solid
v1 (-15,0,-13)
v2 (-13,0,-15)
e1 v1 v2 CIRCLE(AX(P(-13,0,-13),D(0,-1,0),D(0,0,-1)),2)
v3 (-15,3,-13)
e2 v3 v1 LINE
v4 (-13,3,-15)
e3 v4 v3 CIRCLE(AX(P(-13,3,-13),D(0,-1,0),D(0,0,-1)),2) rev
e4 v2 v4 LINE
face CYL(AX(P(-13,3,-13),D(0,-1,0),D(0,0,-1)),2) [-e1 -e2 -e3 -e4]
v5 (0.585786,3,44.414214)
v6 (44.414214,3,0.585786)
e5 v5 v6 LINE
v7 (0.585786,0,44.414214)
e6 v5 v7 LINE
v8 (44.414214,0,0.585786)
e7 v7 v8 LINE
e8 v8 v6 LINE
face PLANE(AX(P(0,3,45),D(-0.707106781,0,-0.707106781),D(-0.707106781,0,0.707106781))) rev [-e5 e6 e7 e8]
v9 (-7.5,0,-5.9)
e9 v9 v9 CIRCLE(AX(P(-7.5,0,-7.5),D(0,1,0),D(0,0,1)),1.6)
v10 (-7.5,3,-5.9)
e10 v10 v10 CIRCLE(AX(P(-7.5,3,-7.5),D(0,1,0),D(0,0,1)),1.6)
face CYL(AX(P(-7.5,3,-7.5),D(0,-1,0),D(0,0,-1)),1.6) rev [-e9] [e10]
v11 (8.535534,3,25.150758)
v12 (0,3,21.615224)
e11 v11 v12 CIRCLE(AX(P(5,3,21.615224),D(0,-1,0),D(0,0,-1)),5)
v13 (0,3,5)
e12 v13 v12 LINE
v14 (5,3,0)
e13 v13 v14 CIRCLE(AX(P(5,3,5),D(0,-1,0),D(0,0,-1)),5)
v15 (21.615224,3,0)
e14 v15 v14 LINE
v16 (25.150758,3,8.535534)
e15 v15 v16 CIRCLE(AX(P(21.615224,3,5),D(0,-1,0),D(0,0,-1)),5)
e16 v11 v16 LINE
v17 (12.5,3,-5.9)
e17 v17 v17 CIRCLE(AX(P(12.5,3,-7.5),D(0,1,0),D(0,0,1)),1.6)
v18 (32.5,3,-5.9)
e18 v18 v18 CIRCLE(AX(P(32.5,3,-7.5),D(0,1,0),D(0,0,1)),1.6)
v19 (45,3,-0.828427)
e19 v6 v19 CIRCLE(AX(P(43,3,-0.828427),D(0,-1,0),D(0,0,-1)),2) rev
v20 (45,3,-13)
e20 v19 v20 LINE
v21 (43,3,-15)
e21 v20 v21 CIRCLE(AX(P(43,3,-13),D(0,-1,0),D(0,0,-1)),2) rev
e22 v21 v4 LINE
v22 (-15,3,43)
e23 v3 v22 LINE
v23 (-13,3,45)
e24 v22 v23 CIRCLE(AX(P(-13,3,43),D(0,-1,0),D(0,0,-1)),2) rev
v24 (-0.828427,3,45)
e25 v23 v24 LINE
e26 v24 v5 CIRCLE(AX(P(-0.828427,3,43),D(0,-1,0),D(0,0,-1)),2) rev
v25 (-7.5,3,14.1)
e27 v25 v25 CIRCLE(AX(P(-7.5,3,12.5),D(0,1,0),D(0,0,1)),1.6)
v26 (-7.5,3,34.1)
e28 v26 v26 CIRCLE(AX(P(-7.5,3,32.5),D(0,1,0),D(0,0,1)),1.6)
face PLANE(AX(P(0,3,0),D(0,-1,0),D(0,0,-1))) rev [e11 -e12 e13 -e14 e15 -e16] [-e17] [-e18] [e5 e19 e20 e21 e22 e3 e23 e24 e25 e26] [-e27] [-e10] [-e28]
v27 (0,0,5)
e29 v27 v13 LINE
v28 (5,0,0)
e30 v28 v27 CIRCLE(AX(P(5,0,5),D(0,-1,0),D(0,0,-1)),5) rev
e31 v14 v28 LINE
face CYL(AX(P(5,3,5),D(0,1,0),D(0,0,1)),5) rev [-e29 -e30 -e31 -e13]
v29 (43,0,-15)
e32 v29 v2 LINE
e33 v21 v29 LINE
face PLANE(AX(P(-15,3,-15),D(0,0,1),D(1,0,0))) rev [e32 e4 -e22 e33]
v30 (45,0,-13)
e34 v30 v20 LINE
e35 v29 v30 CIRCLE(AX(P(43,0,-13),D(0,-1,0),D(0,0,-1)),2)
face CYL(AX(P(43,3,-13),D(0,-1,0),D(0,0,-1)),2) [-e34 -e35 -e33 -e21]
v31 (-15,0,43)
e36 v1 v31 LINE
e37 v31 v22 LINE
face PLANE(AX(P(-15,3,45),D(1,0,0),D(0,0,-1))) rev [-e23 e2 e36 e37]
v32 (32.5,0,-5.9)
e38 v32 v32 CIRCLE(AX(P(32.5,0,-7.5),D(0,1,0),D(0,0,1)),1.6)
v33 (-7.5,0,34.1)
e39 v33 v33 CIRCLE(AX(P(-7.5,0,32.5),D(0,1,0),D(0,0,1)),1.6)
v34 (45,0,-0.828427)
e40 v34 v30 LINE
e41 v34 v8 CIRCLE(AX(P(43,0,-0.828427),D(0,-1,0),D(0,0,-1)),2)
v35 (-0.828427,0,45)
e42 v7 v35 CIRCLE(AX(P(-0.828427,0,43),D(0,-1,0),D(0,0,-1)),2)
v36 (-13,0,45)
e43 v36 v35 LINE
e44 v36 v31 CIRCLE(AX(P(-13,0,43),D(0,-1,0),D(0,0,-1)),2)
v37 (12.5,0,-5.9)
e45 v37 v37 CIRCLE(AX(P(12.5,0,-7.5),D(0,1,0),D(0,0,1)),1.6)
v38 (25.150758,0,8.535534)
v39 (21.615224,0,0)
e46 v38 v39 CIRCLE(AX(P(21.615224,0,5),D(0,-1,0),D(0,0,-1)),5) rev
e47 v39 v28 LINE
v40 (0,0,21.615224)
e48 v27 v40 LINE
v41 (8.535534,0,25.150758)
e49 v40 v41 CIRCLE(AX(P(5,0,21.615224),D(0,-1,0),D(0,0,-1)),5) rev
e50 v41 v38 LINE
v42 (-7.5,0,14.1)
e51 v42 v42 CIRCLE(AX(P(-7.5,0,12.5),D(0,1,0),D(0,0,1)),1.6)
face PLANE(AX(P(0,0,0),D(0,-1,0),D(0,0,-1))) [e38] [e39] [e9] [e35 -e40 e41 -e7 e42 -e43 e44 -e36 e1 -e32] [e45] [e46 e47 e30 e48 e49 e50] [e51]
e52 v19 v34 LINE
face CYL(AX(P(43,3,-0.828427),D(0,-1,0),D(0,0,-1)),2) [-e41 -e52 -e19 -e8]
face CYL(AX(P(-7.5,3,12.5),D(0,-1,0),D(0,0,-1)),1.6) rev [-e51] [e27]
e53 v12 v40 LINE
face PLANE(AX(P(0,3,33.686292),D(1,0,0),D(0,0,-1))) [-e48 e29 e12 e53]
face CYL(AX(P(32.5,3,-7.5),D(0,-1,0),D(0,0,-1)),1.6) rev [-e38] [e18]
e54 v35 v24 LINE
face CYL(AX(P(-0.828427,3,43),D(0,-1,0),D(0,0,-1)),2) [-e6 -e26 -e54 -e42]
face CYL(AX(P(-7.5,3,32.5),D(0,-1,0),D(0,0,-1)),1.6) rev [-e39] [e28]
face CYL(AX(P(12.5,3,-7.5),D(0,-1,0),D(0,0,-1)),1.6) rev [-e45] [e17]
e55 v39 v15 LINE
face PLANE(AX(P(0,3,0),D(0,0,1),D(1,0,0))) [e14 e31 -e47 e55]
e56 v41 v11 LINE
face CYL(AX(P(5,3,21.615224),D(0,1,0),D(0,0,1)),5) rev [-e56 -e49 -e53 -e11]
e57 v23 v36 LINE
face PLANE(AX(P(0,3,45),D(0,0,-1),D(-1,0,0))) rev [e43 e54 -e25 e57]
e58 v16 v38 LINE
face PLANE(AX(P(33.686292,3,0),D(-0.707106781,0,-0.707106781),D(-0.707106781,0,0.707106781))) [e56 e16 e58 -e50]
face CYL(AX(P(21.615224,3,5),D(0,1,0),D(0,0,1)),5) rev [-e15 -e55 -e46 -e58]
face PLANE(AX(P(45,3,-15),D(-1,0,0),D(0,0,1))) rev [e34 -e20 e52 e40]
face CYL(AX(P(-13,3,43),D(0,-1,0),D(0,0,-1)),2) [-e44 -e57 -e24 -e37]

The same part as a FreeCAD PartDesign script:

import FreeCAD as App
import Part
import Sketcher
from FreeCAD import Vector
Q = App.Units.Quantity


def edges_at(feature, points):
    """Names of the edges that pass closest to the given points."""
    edges = feature.Shape.Edges
    near = lambda p: min(range(len(edges)), key=lambda i: edges[i].distToShape(Part.Vertex(*p))[0])
    return sorted({f"Edge{near(p) + 1}" for p in points})

doc = App.newDocument("Part")
params = doc.addObject("Spreadsheet::Sheet", "Params")
for row, (alias, value) in enumerate([
    ("sketch1_diameter", "3.2 mm"),
    ("sketch1_width", "15 mm"),
    ("sketch1_width2", "60 mm"),
    ("pad1_length", "3 mm"),
    ("fillet_radius", "2 mm"),
    ("fillet2_radius", "5 mm"),
], start=1):
    params.set(f"A{row}", alias)
    params.set(f"B{row}", "=" + value)
    params.setAlias(f"B{row}", alias)

body = doc.addObject("PartDesign::Body", "Body")

# Sketch on XZ plane
sketch1 = body.newObject("Sketcher::SketchObject", "Sketch")
sketch1.AttachmentSupport = (doc.getObject("XZ_Plane"), [""])
sketch1.MapMode = "FlatFace"
sketch1.addGeometry([
    Part.LineSegment(Vector(-15, 45, 0), Vector(0, 45, 0)),  # 0
    Part.LineSegment(Vector(0, 45, 0), Vector(45, 0, 0)),  # 1
    Part.LineSegment(Vector(45, 0, 0), Vector(45, -15, 0)),  # 2
    Part.LineSegment(Vector(45, -15, 0), Vector(-15, -15, 0)),  # 3
    Part.LineSegment(Vector(-15, -15, 0), Vector(-15, 45, 0)),  # 4
    Part.LineSegment(Vector(0, 33.7, 0), Vector(0, 0, 0)),  # 5
    Part.LineSegment(Vector(0, 0, 0), Vector(33.7, 0, 0)),  # 6
    Part.LineSegment(Vector(33.7, 0, 0), Vector(0, 33.7, 0)),  # 7
    Part.Circle(Vector(-7.5, 32.5, 0), Vector(0, 0, 1), 1.6),  # 8
    Part.Circle(Vector(32.5, -7.5, 0), Vector(0, 0, 1), 1.6),  # 9
    Part.Circle(Vector(-7.5, 12.5, 0), Vector(0, 0, 1), 1.6),  # 10
    Part.Circle(Vector(12.5, -7.5, 0), Vector(0, 0, 1), 1.6),  # 11
    Part.Circle(Vector(-7.5, -7.5, 0), Vector(0, 0, 1), 1.6),  # 12
], False)
sketch1.addConstraint([
    Sketcher.Constraint("Coincident", 0, 2, 1, 1),
    Sketcher.Constraint("Coincident", 1, 2, 2, 1),
    Sketcher.Constraint("Coincident", 2, 2, 3, 1),
    Sketcher.Constraint("Coincident", 3, 2, 4, 1),
    Sketcher.Constraint("Coincident", 4, 2, 0, 1),
    Sketcher.Constraint("Coincident", 5, 2, 6, 1),
    Sketcher.Constraint("Coincident", 6, 2, 7, 1),
    Sketcher.Constraint("Coincident", 7, 2, 5, 1),
    Sketcher.Constraint("Horizontal", 0),
    Sketcher.Constraint("Vertical", 2),
    Sketcher.Constraint("Horizontal", 3),
    Sketcher.Constraint("Vertical", 4),
    Sketcher.Constraint("Vertical", 5),
    Sketcher.Constraint("Horizontal", 6),
    Sketcher.Constraint("Coincident", 5, 2, -1, 1),
    Sketcher.Constraint("Equal", 8, 9),
    Sketcher.Constraint("Equal", 9, 10),
    Sketcher.Constraint("Equal", 10, 11),
    Sketcher.Constraint("Equal", 11, 12),
    Sketcher.Constraint("PointOnObject", 0, 2, -2),
    Sketcher.Constraint("PointOnObject", 1, 2, -1),
    Sketcher.Constraint("Parallel", 1, 7),
    Sketcher.Constraint("Horizontal", 9, 3, 11, 3),
    Sketcher.Constraint("Horizontal", 11, 3, 12, 3),
    Sketcher.Constraint("Vertical", 8, 3, 10, 3),
    Sketcher.Constraint("Vertical", 10, 3, 12, 3),
    Sketcher.Constraint("Equal", 0, 2),
    Sketcher.Constraint("Equal", 3, 4),
    Sketcher.Constraint("Diameter", 8, Q("3.2 mm")),
    Sketcher.Constraint("DistanceX", 0, 1, 0, 2, Q("15 mm")),
    Sketcher.Constraint("DistanceX", 3, 2, 3, 1, Q("60 mm")),
    Sketcher.Constraint("DistanceX", 8, 3, 9, 3, Q("40 mm")),
    Sketcher.Constraint("DistanceY", 9, 3, 8, 3, Q("40 mm")),
    Sketcher.Constraint("DistanceY", 10, 3, 8, 3, Q("20 mm")),
    Sketcher.Constraint("DistanceX", 11, 3, 9, 3, Q("20 mm")),
    Sketcher.Constraint("DistanceX", 8, 3, -1, 1, Q("7.5 mm")),
    Sketcher.Constraint("DistanceY", -1, 1, 8, 3, Q("32.5 mm")),
    Sketcher.Constraint("DistanceX", 6, 1, 6, 2, Q("33.686292 mm")),
])
sketch1.setExpression("Constraints[28]", "Params.sketch1_diameter")
sketch1.setExpression("Constraints[29]", "Params.sketch1_width")
sketch1.setExpression("Constraints[30]", "Params.sketch1_width2")
pad1 = body.newObject("PartDesign::Pad", "Pad")
pad1.Profile = sketch1
pad1.setExpression("Length", "Params.pad1_length")
pad1.Reversed = True
doc.recompute()

fillet = body.newObject("PartDesign::Fillet", "Fillet")
fillet.Base = (pad1, edges_at(pad1, [
    (0, 1.5, 45),
    (-15, 1.5, 45),
    (-15, 1.5, -15),
    (45, 1.5, -15),
    (45, 1.5, 0),
]))
fillet.setExpression("Radius", "Params.fillet_radius")
doc.recompute()

fillet2 = body.newObject("PartDesign::Fillet", "Fillet001")
fillet2.Base = (fillet, edges_at(fillet, [(33.686, 1.5, 0), (0, 1.5, 0), (0, 1.5, 33.686)]))
fillet2.setExpression("Radius", "Params.fillet2_radius")

doc.recompute()
